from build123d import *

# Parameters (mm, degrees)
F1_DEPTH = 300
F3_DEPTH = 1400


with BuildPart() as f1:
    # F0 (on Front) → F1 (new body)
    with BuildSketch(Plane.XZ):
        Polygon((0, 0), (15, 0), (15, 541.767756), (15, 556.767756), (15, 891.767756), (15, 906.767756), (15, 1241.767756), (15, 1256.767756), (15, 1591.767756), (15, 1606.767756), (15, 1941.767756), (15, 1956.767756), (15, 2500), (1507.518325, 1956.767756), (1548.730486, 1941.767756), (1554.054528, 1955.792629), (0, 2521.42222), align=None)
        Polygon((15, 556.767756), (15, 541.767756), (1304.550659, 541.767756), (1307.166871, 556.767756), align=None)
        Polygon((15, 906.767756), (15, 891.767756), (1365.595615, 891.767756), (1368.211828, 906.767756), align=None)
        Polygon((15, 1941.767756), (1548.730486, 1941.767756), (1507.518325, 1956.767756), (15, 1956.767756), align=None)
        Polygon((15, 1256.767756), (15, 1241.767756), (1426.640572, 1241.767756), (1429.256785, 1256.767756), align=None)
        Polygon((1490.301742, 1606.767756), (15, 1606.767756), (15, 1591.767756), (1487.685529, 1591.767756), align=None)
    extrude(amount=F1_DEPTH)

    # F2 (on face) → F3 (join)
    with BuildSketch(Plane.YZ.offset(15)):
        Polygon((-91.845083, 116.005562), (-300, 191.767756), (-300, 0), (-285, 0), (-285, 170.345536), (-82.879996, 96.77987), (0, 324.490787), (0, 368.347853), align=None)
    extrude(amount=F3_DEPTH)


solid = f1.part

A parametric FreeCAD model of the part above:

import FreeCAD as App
import Part
import Sketcher
Q = App.Units.Quantity

doc = App.newDocument("Part")
body = doc.addObject("PartDesign::Body", "Body")

# Sketch on XZ plane
sketch1 = body.newObject("Sketcher::SketchObject", "Sketch")
sketch1.AttachmentSupport = (doc.getObject("XZ_Plane"), [""])
sketch1.MapMode = "FlatFace"
sketch1.addGeometry([
    Part.LineSegment(App.Vector(0, 0, 0), App.Vector(15, 0, 0)),  # 0
    Part.LineSegment(App.Vector(15, 0, 0), App.Vector(15, 541.767756, 0)),  # 1
    Part.LineSegment(App.Vector(15, 541.767756, 0), App.Vector(1304.550659, 541.767756, 0)),  # 2
    Part.LineSegment(App.Vector(1304.550659, 541.767756, 0), App.Vector(1307.166871, 556.767756, 0)),  # 3
    Part.LineSegment(App.Vector(1307.166871, 556.767756, 0), App.Vector(15, 556.767756, 0)),  # 4
    Part.LineSegment(App.Vector(15, 556.767756, 0), App.Vector(15, 891.767756, 0)),  # 5
    Part.LineSegment(App.Vector(15, 891.767756, 0), App.Vector(1365.595615, 891.767756, 0)),  # 6
    Part.LineSegment(App.Vector(1365.595615, 891.767756, 0), App.Vector(1368.211828, 906.767756, 0)),  # 7
    Part.LineSegment(App.Vector(1368.211828, 906.767756, 0), App.Vector(15, 906.767756, 0)),  # 8
    Part.LineSegment(App.Vector(15, 906.767756, 0), App.Vector(15, 1241.767756, 0)),  # 9
    Part.LineSegment(App.Vector(15, 1241.767756, 0), App.Vector(1426.640572, 1241.767756, 0)),  # 10
    Part.LineSegment(App.Vector(1426.640572, 1241.767756, 0), App.Vector(1429.256785, 1256.767756, 0)),  # 11
    Part.LineSegment(App.Vector(1429.256785, 1256.767756, 0), App.Vector(15, 1256.767756, 0)),  # 12
    Part.LineSegment(App.Vector(15, 1256.767756, 0), App.Vector(15, 1591.767756, 0)),  # 13
    Part.LineSegment(App.Vector(15, 1591.767756, 0), App.Vector(1487.685529, 1591.767756, 0)),  # 14
    Part.LineSegment(App.Vector(1487.685529, 1591.767756, 0), App.Vector(1490.301742, 1606.767756, 0)),  # 15
    Part.LineSegment(App.Vector(1490.301742, 1606.767756, 0), App.Vector(15, 1606.767756, 0)),  # 16
    Part.LineSegment(App.Vector(15, 1606.767756, 0), App.Vector(15, 1941.767756, 0)),  # 17
    Part.LineSegment(App.Vector(15, 1941.767756, 0), App.Vector(1548.730486, 1941.767756, 0)),  # 18
    Part.LineSegment(App.Vector(1548.730486, 1941.767756, 0), App.Vector(1554.054528, 1955.792629, 0)),  # 19
    Part.LineSegment(App.Vector(1554.054528, 1955.792629, 0), App.Vector(0, 2521.42222, 0)),  # 20
    Part.LineSegment(App.Vector(0, 2521.42222, 0), App.Vector(0, 0, 0)),  # 21
    Part.LineSegment(App.Vector(15, 1956.767756, 0), App.Vector(15, 2500, 0)),  # 22
    Part.LineSegment(App.Vector(15, 2500, 0), App.Vector(1507.518325, 1956.767756, 0)),  # 23
    Part.LineSegment(App.Vector(1507.518325, 1956.767756, 0), App.Vector(15, 1956.767756, 0)),  # 24
], False)
sketch1.addConstraint([
    Sketcher.Constraint("Coincident", 0, 2, 1, 1),
    Sketcher.Constraint("Coincident", 1, 2, 2, 1),
    Sketcher.Constraint("Coincident", 2, 2, 3, 1),
    Sketcher.Constraint("Coincident", 3, 2, 4, 1),
    Sketcher.Constraint("Coincident", 4, 2, 5, 1),
    Sketcher.Constraint("Coincident", 5, 2, 6, 1),
    Sketcher.Constraint("Coincident", 6, 2, 7, 1),
    Sketcher.Constraint("Coincident", 7, 2, 8, 1),
    Sketcher.Constraint("Coincident", 8, 2, 9, 1),
    Sketcher.Constraint("Coincident", 9, 2, 10, 1),
    Sketcher.Constraint("Coincident", 10, 2, 11, 1),
    Sketcher.Constraint("Coincident", 11, 2, 12, 1),
    Sketcher.Constraint("Coincident", 12, 2, 13, 1),
    Sketcher.Constraint("Coincident", 13, 2, 14, 1),
    Sketcher.Constraint("Coincident", 14, 2, 15, 1),
    Sketcher.Constraint("Coincident", 15, 2, 16, 1),
    Sketcher.Constraint("Coincident", 16, 2, 17, 1),
    Sketcher.Constraint("Coincident", 17, 2, 18, 1),
    Sketcher.Constraint("Coincident", 18, 2, 19, 1),
    Sketcher.Constraint("Coincident", 19, 2, 20, 1),
    Sketcher.Constraint("Coincident", 20, 2, 21, 1),
    Sketcher.Constraint("Coincident", 21, 2, 0, 1),
    Sketcher.Constraint("Coincident", 22, 2, 23, 1),
    Sketcher.Constraint("Coincident", 23, 2, 24, 1),
    Sketcher.Constraint("Coincident", 24, 2, 22, 1),
    Sketcher.Constraint("Horizontal", 0),
    Sketcher.Constraint("Vertical", 1),
    Sketcher.Constraint("Horizontal", 2),
    Sketcher.Constraint("Horizontal", 4),
    Sketcher.Constraint("Vertical", 5),
    Sketcher.Constraint("Horizontal", 6),
    Sketcher.Constraint("Horizontal", 8),
    Sketcher.Constraint("Vertical", 9),
    Sketcher.Constraint("Horizontal", 10),
    Sketcher.Constraint("Horizontal", 12),
    Sketcher.Constraint("Vertical", 13),
    Sketcher.Constraint("Horizontal", 14),
    Sketcher.Constraint("Horizontal", 16),
    Sketcher.Constraint("Vertical", 17),
    Sketcher.Constraint("Horizontal", 18),
    Sketcher.Constraint("Vertical", 21),
    Sketcher.Constraint("Vertical", 22),
    Sketcher.Constraint("Horizontal", 24),
    Sketcher.Constraint("Coincident", 21, 2, -1, 1),
    Sketcher.Constraint("Parallel", 3, 7),
    Sketcher.Constraint("Parallel", 7, 11),
    Sketcher.Constraint("Parallel", 11, 15),
    Sketcher.Constraint("Parallel", 20, 23),
    Sketcher.Constraint("Vertical", 1, 2, 4, 2),
    Sketcher.Constraint("Vertical", 5, 2, 8, 2),
    Sketcher.Constraint("Vertical", 9, 2, 12, 2),
    Sketcher.Constraint("Vertical", 13, 2, 16, 2),
    Sketcher.Constraint("Vertical", 17, 2, 22, 2),
    Sketcher.Constraint("Equal", 5, 9),
    Sketcher.Constraint("Equal", 9, 13),
    Sketcher.Constraint("Equal", 13, 17),
    Sketcher.Constraint("Equal", 3, 7),
    Sketcher.Constraint("Equal", 7, 11),
    Sketcher.Constraint("Equal", 11, 15),
    Sketcher.Constraint("DistanceX", 0, 1, 0, 2, 15.0),
    Sketcher.Constraint("DistanceY", 5, 1, 5, 2, 335.0),
    Sketcher.Constraint("Angle", 20, Q("160 deg")),
    Sketcher.Constraint("DistanceY", -1, 1, 22, 2, 2500.0),
    Sketcher.Constraint("DistanceY", 2, 2, 3, 2, 15.0),
    Sketcher.Constraint("DistanceY", 18, 2, 23, 2, 15.0),
    Sketcher.Constraint("DistanceX", 14, 2, 19, 2, 66.368999),
    Sketcher.Constraint("DistanceX", 2, 1, 2, 2, 1289.550659),
    Sketcher.Constraint("DistanceX", 4, 2, 4, 1, 1292.166871),
    Sketcher.Constraint("DistanceX", 8, 2, 8, 1, 1353.211828),
    Sketcher.Constraint("DistanceX", 10, 1, 10, 2, 1411.640572),
    Sketcher.Constraint("DistanceX", 14, 1, 14, 2, 1472.685529),
    Sketcher.Constraint("DistanceY", 21, 2, 21, 1, 2521.42222),
    Sketcher.Constraint("DistanceX", 11, 2, 18, 2, 119.473701),
    Sketcher.Constraint("DistanceX", 24, 2, 24, 1, 1492.518325),
])
pad1 = body.newObject("PartDesign::Pad", "Pad")
pad1.Profile = sketch1
pad1.Length = 300

# Sketch on YZ plane
sketch2 = body.newObject("Sketcher::SketchObject", "Sketch001")
sketch2.AttachmentSupport = (doc.getObject("YZ_Plane"), [""])
sketch2.MapMode = "FlatFace"
sketch2.AttachmentOffset = App.Placement(App.Vector(0, 0, 15), App.Rotation())
sketch2.addGeometry([
    Part.LineSegment(App.Vector(-91.845083, 116.005562, 0), App.Vector(-300, 191.767756, 0)),  # 0
    Part.LineSegment(App.Vector(-300, 191.767756, 0), App.Vector(-300, 0, 0)),  # 1
    Part.LineSegment(App.Vector(-300, 0, 0), App.Vector(-285, 0, 0)),  # 2
    Part.LineSegment(App.Vector(-285, 0, 0), App.Vector(-285, 170.345536, 0)),  # 3
    Part.LineSegment(App.Vector(-285, 170.345536, 0), App.Vector(-82.879996, 96.77987, 0)),  # 4
    Part.LineSegment(App.Vector(-82.879996, 96.77987, 0), App.Vector(0, 324.490787, 0)),  # 5
    Part.LineSegment(App.Vector(0, 324.490787, 0), App.Vector(0, 368.347853, 0)),  # 6
    Part.LineSegment(App.Vector(0, 368.347853, 0), App.Vector(-91.845083, 116.005562, 0)),  # 7
], False)
sketch2.addConstraint([
    Sketcher.Constraint("Coincident", 0, 2, 1, 1),
    Sketcher.Constraint("Coincident", 1, 2, 2, 1),
    Sketcher.Constraint("Coincident", 2, 2, 3, 1),
    Sketcher.Constraint("Coincident", 3, 2, 4, 1),
    Sketcher.Constraint("Coincident", 4, 2, 5, 1),
    Sketcher.Constraint("Coincident", 5, 2, 6, 1),
    Sketcher.Constraint("Coincident", 6, 2, 7, 1),
    Sketcher.Constraint("Coincident", 7, 2, 0, 1),
    Sketcher.Constraint("Vertical", 1),
    Sketcher.Constraint("Horizontal", 2),
    Sketcher.Constraint("Vertical", 3),
    Sketcher.Constraint("Vertical", 6),
    Sketcher.Constraint("PointOnObject", 1, 2, -1),
    Sketcher.Constraint("PointOnObject", 5, 2, -2),
    Sketcher.Constraint("Parallel", 0, 4),
    Sketcher.Constraint("Perpendicular", 4, 5),
    Sketcher.Constraint("Parallel", 5, 7),
    Sketcher.Constraint("DistanceX", 2, 1, 2, 2, 15.0),
    Sketcher.Constraint("Angle", 0, Q("160 deg")),
    Sketcher.Constraint("DistanceX", 0, 2, -1, 1, 300.0),
    Sketcher.Constraint("DistanceY", 1, 2, 1, 1, 191.767756),
    Sketcher.Constraint("DistanceY", 3, 1, 3, 2, 170.345536),
    Sketcher.Constraint("DistanceY", 6, 1, 6, 2, 43.857066),
    Sketcher.Constraint("DistanceY", -1, 1, 4, 2, 96.77987),
])
pad2 = body.newObject("PartDesign::Pad", "Pad001")
pad2.Profile = sketch2
pad2.Length = 1400

doc.recompute()
